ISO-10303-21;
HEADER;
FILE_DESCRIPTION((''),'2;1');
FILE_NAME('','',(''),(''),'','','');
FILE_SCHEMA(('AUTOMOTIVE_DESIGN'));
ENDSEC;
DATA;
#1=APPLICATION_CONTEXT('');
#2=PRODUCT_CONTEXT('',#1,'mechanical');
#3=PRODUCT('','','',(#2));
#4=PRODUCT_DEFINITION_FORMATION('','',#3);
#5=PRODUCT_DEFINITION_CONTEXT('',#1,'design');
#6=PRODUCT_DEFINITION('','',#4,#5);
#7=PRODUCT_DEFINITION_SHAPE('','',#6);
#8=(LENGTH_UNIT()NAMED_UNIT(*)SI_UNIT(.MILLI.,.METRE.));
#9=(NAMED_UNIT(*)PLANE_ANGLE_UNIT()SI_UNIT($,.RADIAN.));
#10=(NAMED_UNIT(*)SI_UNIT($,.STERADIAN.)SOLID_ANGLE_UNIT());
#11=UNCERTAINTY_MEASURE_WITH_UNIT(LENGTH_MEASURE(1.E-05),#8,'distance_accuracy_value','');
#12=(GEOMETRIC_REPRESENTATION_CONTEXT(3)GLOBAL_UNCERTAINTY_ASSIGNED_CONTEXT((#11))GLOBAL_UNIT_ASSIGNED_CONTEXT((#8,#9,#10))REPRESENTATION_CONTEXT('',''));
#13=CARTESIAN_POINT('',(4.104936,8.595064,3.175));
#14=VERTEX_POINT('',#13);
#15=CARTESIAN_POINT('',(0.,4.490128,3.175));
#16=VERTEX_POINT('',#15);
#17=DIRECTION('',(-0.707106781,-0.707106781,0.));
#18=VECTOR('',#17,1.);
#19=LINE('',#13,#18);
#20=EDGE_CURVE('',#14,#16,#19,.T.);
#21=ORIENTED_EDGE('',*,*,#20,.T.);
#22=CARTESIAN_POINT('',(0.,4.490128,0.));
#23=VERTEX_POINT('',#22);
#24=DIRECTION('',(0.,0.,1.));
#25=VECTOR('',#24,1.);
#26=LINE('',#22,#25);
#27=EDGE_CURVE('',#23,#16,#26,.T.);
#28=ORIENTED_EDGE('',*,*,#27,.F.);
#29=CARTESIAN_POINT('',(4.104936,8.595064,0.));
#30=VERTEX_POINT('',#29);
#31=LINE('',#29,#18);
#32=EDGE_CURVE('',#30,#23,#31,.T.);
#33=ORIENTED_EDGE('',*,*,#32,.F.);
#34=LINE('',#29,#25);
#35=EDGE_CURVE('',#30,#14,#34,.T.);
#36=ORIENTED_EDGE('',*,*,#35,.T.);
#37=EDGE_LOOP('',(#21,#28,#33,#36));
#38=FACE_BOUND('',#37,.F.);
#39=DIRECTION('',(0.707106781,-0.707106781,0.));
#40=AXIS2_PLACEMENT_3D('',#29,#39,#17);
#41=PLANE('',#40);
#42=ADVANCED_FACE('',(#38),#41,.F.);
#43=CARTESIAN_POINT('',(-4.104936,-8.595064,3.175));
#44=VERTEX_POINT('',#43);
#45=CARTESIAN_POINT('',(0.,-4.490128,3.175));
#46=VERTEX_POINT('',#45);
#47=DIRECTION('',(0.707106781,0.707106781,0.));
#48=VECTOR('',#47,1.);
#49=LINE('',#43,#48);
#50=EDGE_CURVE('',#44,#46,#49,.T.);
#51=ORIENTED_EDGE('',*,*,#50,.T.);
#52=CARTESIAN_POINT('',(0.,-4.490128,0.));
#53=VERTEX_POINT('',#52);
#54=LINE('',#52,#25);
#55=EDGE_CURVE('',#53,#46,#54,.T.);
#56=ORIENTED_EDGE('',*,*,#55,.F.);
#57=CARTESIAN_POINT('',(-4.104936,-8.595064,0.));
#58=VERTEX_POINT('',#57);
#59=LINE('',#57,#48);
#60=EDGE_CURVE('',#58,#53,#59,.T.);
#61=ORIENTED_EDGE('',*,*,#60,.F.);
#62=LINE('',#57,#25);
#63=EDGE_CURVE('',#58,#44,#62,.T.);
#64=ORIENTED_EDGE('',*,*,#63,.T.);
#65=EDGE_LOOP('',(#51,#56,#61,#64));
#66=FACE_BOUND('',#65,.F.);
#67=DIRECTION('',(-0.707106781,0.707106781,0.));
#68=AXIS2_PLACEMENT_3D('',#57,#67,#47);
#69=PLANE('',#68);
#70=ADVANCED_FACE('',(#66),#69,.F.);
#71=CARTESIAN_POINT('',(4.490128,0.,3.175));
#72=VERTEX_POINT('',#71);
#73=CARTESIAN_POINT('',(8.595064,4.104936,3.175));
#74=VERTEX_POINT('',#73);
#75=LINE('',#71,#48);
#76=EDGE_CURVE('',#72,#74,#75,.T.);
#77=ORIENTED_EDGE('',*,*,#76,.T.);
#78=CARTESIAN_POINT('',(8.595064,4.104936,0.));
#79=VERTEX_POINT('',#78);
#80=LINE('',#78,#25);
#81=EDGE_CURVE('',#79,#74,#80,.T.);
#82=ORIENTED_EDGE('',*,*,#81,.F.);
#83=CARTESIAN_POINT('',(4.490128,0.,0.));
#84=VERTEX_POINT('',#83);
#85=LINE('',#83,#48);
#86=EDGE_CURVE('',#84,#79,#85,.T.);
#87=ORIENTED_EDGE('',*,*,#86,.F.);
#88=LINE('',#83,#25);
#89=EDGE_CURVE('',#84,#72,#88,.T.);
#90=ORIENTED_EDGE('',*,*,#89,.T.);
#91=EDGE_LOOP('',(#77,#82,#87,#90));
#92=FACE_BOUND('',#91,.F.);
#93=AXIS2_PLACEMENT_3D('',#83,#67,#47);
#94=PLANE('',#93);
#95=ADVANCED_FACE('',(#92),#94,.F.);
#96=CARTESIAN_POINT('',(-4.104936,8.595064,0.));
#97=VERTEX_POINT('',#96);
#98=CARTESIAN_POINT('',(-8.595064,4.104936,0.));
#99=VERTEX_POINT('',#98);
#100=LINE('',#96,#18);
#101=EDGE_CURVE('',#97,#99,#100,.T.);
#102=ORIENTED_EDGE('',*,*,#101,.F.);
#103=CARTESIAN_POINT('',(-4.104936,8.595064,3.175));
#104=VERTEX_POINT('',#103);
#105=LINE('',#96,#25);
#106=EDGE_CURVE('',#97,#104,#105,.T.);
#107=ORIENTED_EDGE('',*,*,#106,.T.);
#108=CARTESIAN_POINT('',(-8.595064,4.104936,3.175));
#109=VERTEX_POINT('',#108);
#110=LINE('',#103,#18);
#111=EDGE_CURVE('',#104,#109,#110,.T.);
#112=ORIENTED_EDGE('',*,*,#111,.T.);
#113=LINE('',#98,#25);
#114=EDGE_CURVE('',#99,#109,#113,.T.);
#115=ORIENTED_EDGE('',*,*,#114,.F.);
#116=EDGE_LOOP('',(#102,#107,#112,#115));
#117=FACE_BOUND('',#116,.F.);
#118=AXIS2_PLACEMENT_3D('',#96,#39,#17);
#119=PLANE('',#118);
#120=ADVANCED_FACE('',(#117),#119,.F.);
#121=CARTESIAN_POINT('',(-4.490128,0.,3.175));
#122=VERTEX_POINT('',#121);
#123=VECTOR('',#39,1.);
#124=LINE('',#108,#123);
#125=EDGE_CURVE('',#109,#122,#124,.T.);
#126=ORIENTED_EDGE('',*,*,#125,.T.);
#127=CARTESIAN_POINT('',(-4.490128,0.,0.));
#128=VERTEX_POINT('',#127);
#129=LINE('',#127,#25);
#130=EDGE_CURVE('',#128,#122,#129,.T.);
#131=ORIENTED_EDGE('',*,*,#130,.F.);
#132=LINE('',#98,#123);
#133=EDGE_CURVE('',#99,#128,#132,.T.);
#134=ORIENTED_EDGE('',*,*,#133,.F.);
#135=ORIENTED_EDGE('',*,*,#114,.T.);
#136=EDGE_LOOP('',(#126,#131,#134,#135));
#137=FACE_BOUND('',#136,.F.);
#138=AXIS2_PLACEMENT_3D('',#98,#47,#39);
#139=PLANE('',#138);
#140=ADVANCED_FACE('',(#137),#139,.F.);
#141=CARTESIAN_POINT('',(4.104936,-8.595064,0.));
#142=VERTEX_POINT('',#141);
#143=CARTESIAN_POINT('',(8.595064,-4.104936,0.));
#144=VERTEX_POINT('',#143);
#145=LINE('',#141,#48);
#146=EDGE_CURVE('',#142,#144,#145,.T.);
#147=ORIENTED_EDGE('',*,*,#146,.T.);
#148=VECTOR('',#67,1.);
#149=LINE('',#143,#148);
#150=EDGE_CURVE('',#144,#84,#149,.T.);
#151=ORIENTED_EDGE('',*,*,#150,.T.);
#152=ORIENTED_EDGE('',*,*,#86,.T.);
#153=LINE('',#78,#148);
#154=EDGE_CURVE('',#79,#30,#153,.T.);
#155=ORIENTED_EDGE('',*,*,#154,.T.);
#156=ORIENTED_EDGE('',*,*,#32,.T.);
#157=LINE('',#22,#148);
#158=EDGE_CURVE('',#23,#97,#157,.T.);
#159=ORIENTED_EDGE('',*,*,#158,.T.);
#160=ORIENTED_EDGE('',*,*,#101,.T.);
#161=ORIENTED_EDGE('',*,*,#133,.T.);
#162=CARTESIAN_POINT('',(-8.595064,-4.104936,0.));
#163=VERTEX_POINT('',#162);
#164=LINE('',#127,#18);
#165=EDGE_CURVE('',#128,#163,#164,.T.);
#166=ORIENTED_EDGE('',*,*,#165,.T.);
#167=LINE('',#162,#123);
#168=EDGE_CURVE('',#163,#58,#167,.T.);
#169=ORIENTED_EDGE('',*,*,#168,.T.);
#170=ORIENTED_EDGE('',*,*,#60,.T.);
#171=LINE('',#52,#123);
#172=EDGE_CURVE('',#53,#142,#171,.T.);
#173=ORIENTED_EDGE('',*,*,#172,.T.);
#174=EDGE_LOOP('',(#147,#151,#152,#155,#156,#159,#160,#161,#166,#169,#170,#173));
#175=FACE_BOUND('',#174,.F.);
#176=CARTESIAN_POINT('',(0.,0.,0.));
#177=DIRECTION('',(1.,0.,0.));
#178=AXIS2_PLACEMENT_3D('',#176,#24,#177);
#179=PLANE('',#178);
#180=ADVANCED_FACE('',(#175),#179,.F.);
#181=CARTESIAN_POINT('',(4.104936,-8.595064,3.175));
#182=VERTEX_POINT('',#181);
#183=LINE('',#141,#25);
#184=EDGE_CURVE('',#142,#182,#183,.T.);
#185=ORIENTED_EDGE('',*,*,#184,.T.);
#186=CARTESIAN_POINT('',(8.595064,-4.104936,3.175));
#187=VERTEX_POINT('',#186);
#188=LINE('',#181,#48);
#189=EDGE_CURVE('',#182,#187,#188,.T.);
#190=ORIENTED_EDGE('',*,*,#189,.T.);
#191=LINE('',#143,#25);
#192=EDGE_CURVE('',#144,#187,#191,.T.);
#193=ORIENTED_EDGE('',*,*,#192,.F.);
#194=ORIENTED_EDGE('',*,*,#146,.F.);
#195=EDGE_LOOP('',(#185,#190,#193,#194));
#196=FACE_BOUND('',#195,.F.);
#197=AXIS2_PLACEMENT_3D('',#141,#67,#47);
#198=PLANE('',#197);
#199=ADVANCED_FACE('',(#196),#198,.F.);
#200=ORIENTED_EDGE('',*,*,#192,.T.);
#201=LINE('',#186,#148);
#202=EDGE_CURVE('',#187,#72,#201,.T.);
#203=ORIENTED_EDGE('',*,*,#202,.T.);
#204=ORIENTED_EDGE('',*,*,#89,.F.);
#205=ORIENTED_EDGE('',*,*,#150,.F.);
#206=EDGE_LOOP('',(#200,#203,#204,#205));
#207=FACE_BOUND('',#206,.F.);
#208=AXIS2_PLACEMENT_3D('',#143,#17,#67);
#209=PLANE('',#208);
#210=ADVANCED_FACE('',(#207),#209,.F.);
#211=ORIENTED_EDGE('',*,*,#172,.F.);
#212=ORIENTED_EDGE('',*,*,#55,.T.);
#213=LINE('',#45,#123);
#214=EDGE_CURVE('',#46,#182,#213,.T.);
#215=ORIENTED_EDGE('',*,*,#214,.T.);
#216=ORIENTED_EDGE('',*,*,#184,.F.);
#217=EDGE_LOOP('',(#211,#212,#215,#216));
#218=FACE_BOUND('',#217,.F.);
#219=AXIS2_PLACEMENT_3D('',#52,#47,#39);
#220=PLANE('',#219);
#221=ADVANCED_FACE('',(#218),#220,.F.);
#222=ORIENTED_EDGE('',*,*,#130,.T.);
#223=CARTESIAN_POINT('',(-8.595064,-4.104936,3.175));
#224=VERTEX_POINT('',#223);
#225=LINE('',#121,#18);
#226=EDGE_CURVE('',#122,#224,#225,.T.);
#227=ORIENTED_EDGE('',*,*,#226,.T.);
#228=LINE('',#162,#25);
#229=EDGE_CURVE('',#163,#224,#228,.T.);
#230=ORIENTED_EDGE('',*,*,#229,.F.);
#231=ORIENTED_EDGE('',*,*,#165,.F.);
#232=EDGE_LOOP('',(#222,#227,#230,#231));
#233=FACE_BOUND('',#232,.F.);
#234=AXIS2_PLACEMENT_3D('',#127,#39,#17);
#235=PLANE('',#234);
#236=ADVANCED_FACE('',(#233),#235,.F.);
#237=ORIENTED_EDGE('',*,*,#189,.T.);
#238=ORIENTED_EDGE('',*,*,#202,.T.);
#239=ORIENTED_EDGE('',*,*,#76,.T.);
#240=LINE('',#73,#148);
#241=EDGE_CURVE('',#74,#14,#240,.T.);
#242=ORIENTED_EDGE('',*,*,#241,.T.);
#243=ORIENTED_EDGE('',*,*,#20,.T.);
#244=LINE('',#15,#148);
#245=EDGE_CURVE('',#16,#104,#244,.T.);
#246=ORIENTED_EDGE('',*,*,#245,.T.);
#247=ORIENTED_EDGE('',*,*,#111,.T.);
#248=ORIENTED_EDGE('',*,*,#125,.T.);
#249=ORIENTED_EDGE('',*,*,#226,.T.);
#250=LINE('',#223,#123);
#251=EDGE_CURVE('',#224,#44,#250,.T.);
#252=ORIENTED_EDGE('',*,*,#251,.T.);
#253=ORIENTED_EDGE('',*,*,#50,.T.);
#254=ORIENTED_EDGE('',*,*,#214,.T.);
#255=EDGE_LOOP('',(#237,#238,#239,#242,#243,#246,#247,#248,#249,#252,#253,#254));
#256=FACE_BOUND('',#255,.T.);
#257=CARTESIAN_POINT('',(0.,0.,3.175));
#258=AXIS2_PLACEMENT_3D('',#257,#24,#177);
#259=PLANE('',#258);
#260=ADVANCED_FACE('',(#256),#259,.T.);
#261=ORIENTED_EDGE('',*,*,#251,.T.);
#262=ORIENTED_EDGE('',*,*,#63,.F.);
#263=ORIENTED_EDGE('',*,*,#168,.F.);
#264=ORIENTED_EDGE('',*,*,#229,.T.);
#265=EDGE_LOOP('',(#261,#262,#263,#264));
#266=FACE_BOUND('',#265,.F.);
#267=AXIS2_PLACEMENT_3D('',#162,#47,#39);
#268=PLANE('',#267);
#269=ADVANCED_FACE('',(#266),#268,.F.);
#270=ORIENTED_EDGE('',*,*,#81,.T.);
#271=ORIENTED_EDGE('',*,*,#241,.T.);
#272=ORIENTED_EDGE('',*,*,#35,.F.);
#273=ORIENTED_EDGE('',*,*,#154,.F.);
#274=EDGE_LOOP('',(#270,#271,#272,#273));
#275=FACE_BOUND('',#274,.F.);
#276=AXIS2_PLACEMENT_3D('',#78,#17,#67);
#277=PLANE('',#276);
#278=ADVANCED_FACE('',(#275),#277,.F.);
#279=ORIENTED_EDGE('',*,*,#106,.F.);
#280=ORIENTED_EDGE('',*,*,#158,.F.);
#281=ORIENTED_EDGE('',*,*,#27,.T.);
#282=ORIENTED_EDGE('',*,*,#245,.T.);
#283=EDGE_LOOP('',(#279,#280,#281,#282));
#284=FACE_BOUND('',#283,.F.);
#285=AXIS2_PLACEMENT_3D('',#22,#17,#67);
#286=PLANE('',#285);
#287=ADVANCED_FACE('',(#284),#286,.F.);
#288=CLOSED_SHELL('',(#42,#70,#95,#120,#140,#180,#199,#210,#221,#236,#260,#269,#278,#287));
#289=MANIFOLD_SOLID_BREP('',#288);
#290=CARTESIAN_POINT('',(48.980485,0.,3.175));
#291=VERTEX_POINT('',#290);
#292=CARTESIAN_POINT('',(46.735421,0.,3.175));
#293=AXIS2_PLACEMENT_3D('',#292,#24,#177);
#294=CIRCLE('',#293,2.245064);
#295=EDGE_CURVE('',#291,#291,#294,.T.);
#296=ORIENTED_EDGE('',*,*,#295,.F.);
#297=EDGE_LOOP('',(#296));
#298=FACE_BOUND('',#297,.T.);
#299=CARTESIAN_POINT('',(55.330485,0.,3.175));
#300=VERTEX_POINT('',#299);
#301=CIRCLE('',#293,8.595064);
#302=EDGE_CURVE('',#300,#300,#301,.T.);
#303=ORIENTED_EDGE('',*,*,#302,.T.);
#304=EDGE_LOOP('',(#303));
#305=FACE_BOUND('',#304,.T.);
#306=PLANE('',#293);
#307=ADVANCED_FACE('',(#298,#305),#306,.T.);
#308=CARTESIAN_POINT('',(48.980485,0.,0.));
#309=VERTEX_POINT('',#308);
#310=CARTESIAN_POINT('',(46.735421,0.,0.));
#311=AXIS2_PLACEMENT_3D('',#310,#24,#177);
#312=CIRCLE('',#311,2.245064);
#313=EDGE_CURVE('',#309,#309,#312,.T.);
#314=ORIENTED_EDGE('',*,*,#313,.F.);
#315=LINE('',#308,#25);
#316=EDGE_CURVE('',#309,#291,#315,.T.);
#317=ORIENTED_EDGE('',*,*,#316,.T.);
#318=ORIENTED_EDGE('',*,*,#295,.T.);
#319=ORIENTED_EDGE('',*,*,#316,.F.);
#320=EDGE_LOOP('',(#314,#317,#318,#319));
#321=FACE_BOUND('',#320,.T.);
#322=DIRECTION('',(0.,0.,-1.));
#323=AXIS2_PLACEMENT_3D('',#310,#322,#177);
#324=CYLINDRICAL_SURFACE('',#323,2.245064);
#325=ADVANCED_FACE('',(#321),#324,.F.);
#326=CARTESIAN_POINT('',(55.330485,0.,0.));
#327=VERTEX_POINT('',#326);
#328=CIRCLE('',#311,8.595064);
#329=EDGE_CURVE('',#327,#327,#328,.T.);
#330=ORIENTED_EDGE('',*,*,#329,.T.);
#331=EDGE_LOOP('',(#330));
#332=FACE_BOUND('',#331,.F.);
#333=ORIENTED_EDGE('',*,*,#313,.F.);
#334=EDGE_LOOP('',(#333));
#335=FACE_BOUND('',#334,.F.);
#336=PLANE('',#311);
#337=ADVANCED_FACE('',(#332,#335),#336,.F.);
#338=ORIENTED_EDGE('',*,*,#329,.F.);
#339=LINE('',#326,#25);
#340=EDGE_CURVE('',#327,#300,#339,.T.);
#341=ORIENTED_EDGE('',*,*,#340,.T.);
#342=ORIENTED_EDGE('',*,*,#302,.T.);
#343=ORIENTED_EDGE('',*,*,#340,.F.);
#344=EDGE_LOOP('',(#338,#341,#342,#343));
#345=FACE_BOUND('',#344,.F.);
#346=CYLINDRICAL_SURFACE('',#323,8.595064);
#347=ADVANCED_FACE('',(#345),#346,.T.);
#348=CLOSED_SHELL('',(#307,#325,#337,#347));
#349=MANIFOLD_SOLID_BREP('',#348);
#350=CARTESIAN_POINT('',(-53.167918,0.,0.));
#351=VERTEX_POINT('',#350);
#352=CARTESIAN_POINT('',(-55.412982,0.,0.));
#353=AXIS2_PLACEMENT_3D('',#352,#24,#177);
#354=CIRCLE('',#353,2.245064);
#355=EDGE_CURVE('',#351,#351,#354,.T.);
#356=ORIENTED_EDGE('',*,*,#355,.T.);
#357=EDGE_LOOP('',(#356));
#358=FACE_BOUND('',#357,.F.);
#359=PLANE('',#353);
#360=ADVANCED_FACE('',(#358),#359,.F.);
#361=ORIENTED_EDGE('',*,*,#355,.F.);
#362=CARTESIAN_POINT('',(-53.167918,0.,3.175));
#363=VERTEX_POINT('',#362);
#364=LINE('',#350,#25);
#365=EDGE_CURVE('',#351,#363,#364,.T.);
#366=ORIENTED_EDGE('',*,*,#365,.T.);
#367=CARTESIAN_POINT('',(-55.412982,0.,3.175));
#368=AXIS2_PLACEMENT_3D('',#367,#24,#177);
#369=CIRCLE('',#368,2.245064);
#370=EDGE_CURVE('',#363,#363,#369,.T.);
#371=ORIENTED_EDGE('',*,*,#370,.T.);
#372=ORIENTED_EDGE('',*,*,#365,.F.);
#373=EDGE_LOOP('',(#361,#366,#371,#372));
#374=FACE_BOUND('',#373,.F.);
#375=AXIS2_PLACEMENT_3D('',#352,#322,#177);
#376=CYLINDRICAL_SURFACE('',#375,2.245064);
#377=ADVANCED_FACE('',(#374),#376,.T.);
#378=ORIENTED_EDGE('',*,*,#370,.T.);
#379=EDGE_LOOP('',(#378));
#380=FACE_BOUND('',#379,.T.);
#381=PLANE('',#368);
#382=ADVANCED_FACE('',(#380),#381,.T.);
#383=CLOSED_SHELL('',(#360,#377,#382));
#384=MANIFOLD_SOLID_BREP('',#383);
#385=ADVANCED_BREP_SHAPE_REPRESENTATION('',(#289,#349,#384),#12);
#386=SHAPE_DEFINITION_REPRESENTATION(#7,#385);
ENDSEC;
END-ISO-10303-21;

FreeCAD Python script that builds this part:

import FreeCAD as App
import Part
import Sketcher

V = App.Vector
Q = App.Units.Quantity

doc = App.newDocument("Part")
body = doc.addObject("PartDesign::Body", "Body")

# Sketch on XY plane
sketch1 = body.newObject("Sketcher::SketchObject", "Sketch")
sketch1.AttachmentSupport = (doc.getObject("XY_Plane"), [""])
sketch1.MapMode = "FlatFace"
sketch1.addGeometry([
    Part.LineSegment(V(4, 9, 0), V(0, 4, 0)),  # 0
    Part.LineSegment(V(0, 4, 0), V(-4, 9, 0)),  # 1
    Part.LineSegment(V(-4, 9, 0), V(-9, 4, 0)),  # 2
    Part.LineSegment(V(-9, 4, 0), V(-4, 0, 0)),  # 3
    Part.LineSegment(V(-4, 0, 0), V(-9, -4, 0)),  # 4
    Part.LineSegment(V(-9, -4, 0), V(-4, -9, 0)),  # 5
    Part.LineSegment(V(-4, -9, 0), V(0, -4, 0)),  # 6
    Part.LineSegment(V(0, -4, 0), V(4, -9, 0)),  # 7
    Part.LineSegment(V(4, -9, 0), V(9, -4, 0)),  # 8
    Part.LineSegment(V(9, -4, 0), V(4, 0, 0)),  # 9
    Part.LineSegment(V(4, 0, 0), V(9, 4, 0)),  # 10
    Part.LineSegment(V(9, 4, 0), V(4, 9, 0)),  # 11
], False)
sketch1.addConstraint([
    Sketcher.Constraint("Coincident", 0, 2, 1, 1),
    Sketcher.Constraint("Coincident", 1, 2, 2, 1),
    Sketcher.Constraint("Coincident", 2, 2, 3, 1),
    Sketcher.Constraint("Coincident", 3, 2, 4, 1),
    Sketcher.Constraint("Coincident", 4, 2, 5, 1),
    Sketcher.Constraint("Coincident", 5, 2, 6, 1),
    Sketcher.Constraint("Coincident", 6, 2, 7, 1),
    Sketcher.Constraint("Coincident", 7, 2, 8, 1),
    Sketcher.Constraint("Coincident", 8, 2, 9, 1),
    Sketcher.Constraint("Coincident", 9, 2, 10, 1),
    Sketcher.Constraint("Coincident", 10, 2, 11, 1),
    Sketcher.Constraint("Coincident", 11, 2, 0, 1),
    Sketcher.Constraint("Symmetric", 0, 2, 6, 2, -1, 1),
    Sketcher.Constraint("Symmetric", 1, 2, 7, 2, -1, 1),
    Sketcher.Constraint("Symmetric", 2, 2, 8, 2, -1, 1),
    Sketcher.Constraint("Symmetric", 3, 2, 9, 2, -1, 1),
    Sketcher.Constraint("Symmetric", 4, 2, 10, 2, -1, 1),
    Sketcher.Constraint("Symmetric", 5, 2, 11, 2, -1, 1),
    Sketcher.Constraint("Symmetric", 5, 2, 7, 2, -2),
    Sketcher.Constraint("Symmetric", 4, 2, 8, 2, -2),
    Sketcher.Constraint("PointOnObject", 0, 2, -2),
    Sketcher.Constraint("PointOnObject", 3, 2, -1),
    Sketcher.Constraint("Perpendicular", 0, 1),
    Sketcher.Constraint("Perpendicular", 1, 2),
    Sketcher.Constraint("Perpendicular", 2, 3),
    Sketcher.Constraint("Equal", 1, 3),
    Sketcher.Constraint("DistanceY", 4, 2, 1, 2, Q("0.5 in")),
    Sketcher.Constraint("Distance", 2, Q("0.25 in")),
])
pad1 = body.newObject("PartDesign::Pad", "Pad")
pad1.Profile = sketch1
pad1.Length = Q("0.125 in")
body2 = doc.addObject("PartDesign::Body", "Body001")

# Sketch on XY plane
sketch2 = body2.newObject("Sketcher::SketchObject", "Sketch001")
sketch2.AttachmentSupport = (doc.getObject("XY_Plane001"), [""])
sketch2.MapMode = "FlatFace"
sketch2.addGeometry([
    Part.Circle(V(46.7, 0, 0), V(0, 0, 1), 8.6),
    Part.Circle(V(46.7, 0, 0), V(0, 0, 1), 2.2),
], False)
sketch2.addConstraint([
    Sketcher.Constraint("Coincident", 1, 3, 0, 3),
    Sketcher.Constraint("PointOnObject", 0, 3, -1),
    Sketcher.Constraint("Diameter", 0, Q("17.190128 mm")),
    Sketcher.Constraint("Diameter", 1, Q("4.490128 mm")),
    Sketcher.Constraint("DistanceX", -1, 1, 0, 3, Q("46.735421 mm")),
])
pad2 = body2.newObject("PartDesign::Pad", "Pad001")
pad2.Profile = sketch2
pad2.Length = Q("0.125 in")
body3 = doc.addObject("PartDesign::Body", "Body002")

# Sketch on XY plane
sketch3 = body3.newObject("Sketcher::SketchObject", "Sketch002")
sketch3.AttachmentSupport = (doc.getObject("XY_Plane002"), [""])
sketch3.MapMode = "FlatFace"
sketch3.addGeometry(Part.Circle(V(-55.4, 0, 0), V(0, 0, 1), 2.2), False)
sketch3.addConstraint([
    Sketcher.Constraint("PointOnObject", 0, 3, -1),
    Sketcher.Constraint("Diameter", 0, Q("4.490128 mm")),
    Sketcher.Constraint("DistanceX", 0, 3, -1, 1, Q("55.412982 mm")),
])
pad3 = body3.newObject("PartDesign::Pad", "Pad002")
pad3.Profile = sketch3
pad3.Length = Q("0.125 in")

doc.recompute()
